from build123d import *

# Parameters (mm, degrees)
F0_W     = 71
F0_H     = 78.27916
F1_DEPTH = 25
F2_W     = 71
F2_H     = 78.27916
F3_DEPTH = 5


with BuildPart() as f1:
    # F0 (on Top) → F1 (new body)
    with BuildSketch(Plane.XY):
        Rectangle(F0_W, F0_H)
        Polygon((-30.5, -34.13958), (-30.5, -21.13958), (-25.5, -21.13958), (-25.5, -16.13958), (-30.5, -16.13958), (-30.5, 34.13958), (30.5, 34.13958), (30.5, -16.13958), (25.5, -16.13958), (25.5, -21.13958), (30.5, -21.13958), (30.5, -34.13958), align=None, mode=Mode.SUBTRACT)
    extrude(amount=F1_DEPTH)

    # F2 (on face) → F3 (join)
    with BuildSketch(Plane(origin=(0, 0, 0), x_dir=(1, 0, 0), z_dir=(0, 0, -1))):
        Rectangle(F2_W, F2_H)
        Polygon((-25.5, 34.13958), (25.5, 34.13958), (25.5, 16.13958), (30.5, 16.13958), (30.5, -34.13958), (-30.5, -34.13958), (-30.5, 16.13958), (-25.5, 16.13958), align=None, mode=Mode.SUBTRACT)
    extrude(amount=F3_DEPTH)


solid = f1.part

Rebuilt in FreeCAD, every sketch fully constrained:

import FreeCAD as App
import Part
import Sketcher

V = App.Vector


def add_polygon(sketch, points):
    """Adds a closed chain of lines whose ends are joined by coincident constraints."""
    first, n = sketch.GeometryCount, len(points)
    for a, b in zip(points, points[1:] + points[:1]):
        sketch.addGeometry(Part.LineSegment(App.Vector(*a, 0), App.Vector(*b, 0)), False)
    for i in range(n):
        sketch.addConstraint(Sketcher.Constraint("Coincident", first + i, 2, first + (i + 1) % n, 1))

doc = App.newDocument("Part")
body = doc.addObject("PartDesign::Body", "Body")

# Sketch on XY plane
sketch1 = body.newObject("Sketcher::SketchObject", "Sketch")
sketch1.AttachmentSupport = (doc.getObject("XY_Plane"), [""])
sketch1.MapMode = "FlatFace"
add_polygon(sketch1, [(-36, 39), (-36, -39), (36, -39), (36, 39)])  # lines 0-3
add_polygon(sketch1, [(30, -34), (-30, -34), (-30, -21), (-26, -21), (-26, -16), (-30, -16), (-30, 34), (30, 34), (30, -16), (26, -16), (26, -21), (30, -21)])  # lines 4-15
sketch1.addConstraint(Sketcher.Constraint("Vertical", 0))
sketch1.addConstraint(Sketcher.Constraint("Horizontal", 1))
sketch1.addConstraint(Sketcher.Constraint("Vertical", 2))
sketch1.addConstraint(Sketcher.Constraint("Horizontal", 3))
sketch1.addConstraint(Sketcher.Constraint("Horizontal", 4))
sketch1.addConstraint(Sketcher.Constraint("Vertical", 5))
sketch1.addConstraint(Sketcher.Constraint("Horizontal", 6))
sketch1.addConstraint(Sketcher.Constraint("Vertical", 7))
sketch1.addConstraint(Sketcher.Constraint("Horizontal", 8))
sketch1.addConstraint(Sketcher.Constraint("Vertical", 9))
sketch1.addConstraint(Sketcher.Constraint("Horizontal", 10))
sketch1.addConstraint(Sketcher.Constraint("Vertical", 11))
sketch1.addConstraint(Sketcher.Constraint("Horizontal", 12))
sketch1.addConstraint(Sketcher.Constraint("Vertical", 13))
sketch1.addConstraint(Sketcher.Constraint("Horizontal", 14))
sketch1.addConstraint(Sketcher.Constraint("Vertical", 15))
sketch1.addConstraint(Sketcher.Constraint("Symmetric", 0, 2, 2, 2, -1, 1))
sketch1.addConstraint(Sketcher.Constraint("Symmetric", 4, 2, 10, 2, -1, 1))
sketch1.addConstraint(Sketcher.Constraint("Symmetric", 8, 2, 11, 2, -2))
sketch1.addConstraint(Sketcher.Constraint("Symmetric", 6, 2, 13, 2, -2))
sketch1.addConstraint(Sketcher.Constraint("Vertical", 11, 2, 14, 2))
sketch1.addConstraint(Sketcher.Constraint("Equal", 14, 7))
sketch1.addConstraint(Sketcher.Constraint("DistanceX", 1, 1, 1, 2, 71.0))
sketch1.addConstraint(Sketcher.Constraint("DistanceX", 4, 2, 4, 1, 61.0))
sketch1.addConstraint(Sketcher.Constraint("DistanceX", 6, 1, 6, 2, 5.0))
sketch1.addConstraint(Sketcher.Constraint("DistanceY", 5, 1, 5, 2, 13.0))
sketch1.addConstraint(Sketcher.Constraint("DistanceY", 0, 2, 4, 2, 5.0))
sketch1.addConstraint(Sketcher.Constraint("DistanceY", 0, 2, 0, 1, 78.27916))
pad1 = body.newObject("PartDesign::Pad", "Pad")
pad1.Profile = sketch1
pad1.Length = 25

# Sketch on XY plane
sketch2 = body.newObject("Sketcher::SketchObject", "Sketch001")
sketch2.AttachmentSupport = (doc.getObject("XY_Plane"), [""])
sketch2.MapMode = "FlatFace"
add_polygon(sketch2, [(-36, -39), (-36, 39), (36, 39), (36, -39)])  # lines 0-3
add_polygon(sketch2, [(-26, -16), (-26, -34), (26, -34), (26, -16), (30, -16), (30, 34), (-30, 34), (-30, -16)])  # lines 4-11
sketch2.addConstraint(Sketcher.Constraint("Vertical", 0))
sketch2.addConstraint(Sketcher.Constraint("Horizontal", 1))
sketch2.addConstraint(Sketcher.Constraint("Vertical", 2))
sketch2.addConstraint(Sketcher.Constraint("Horizontal", 3))
sketch2.addConstraint(Sketcher.Constraint("Vertical", 4))
sketch2.addConstraint(Sketcher.Constraint("Horizontal", 5))
sketch2.addConstraint(Sketcher.Constraint("Vertical", 6))
sketch2.addConstraint(Sketcher.Constraint("Horizontal", 7))
sketch2.addConstraint(Sketcher.Constraint("Vertical", 8))
sketch2.addConstraint(Sketcher.Constraint("Horizontal", 9))
sketch2.addConstraint(Sketcher.Constraint("Vertical", 10))
sketch2.addConstraint(Sketcher.Constraint("Horizontal", 11))
sketch2.addConstraint(Sketcher.Constraint("Symmetric", 0, 2, 2, 2, -1, 1))
sketch2.addConstraint(Sketcher.Constraint("Symmetric", 7, 2, 10, 2, -2))
sketch2.addConstraint(Sketcher.Constraint("Equal", 7, 11))
sketch2.addConstraint(Sketcher.Constraint("DistanceX", 1, 1, 1, 2, 71.0))
sketch2.addConstraint(Sketcher.Constraint("DistanceX", 5, 1, 5, 2, 51.0))
sketch2.addConstraint(Sketcher.Constraint("DistanceX", 7, 1, 7, 2, 5.0))
sketch2.addConstraint(Sketcher.Constraint("DistanceY", 4, 2, 4, 1, 18.0))
sketch2.addConstraint(Sketcher.Constraint("DistanceY", 3, 2, 4, 2, 5.0))
sketch2.addConstraint(Sketcher.Constraint("DistanceY", 8, 2, 1, 2, 5.0))
sketch2.addConstraint(Sketcher.Constraint("DistanceY", 0, 1, 0, 2, 78.27916))
pad2 = body.newObject("PartDesign::Pad", "Pad001")
pad2.Profile = sketch2
pad2.Length = 5
pad2.Reversed = True

doc.recompute()
